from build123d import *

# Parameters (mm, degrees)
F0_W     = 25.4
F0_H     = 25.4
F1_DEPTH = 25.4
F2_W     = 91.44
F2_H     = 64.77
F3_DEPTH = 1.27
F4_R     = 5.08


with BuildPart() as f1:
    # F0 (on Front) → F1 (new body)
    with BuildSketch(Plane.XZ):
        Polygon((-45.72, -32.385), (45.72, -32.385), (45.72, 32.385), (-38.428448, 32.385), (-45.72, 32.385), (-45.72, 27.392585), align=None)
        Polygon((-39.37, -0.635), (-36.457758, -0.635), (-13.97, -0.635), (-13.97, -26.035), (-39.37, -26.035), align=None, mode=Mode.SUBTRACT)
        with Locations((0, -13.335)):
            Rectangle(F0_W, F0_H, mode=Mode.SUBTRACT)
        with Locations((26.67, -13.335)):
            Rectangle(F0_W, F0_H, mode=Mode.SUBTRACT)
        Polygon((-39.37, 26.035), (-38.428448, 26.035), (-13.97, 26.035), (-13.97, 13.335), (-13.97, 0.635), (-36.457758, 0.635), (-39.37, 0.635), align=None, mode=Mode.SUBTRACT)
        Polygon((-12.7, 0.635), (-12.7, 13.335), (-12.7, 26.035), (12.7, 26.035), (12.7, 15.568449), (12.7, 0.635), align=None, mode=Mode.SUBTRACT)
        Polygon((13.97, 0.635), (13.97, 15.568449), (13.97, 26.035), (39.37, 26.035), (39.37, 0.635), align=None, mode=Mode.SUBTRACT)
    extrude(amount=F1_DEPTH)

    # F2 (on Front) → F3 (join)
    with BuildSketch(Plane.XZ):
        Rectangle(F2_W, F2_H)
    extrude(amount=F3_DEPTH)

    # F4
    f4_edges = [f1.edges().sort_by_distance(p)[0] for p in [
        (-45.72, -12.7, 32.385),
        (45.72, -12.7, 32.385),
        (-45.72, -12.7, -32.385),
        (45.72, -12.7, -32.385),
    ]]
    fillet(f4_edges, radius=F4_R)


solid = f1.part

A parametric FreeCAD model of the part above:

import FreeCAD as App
import Part
import Sketcher
from FreeCAD import Vector
Q = App.Units.Quantity


def edges_at(feature, points):
    """Names of the edges that pass closest to the given points."""
    edges = feature.Shape.Edges
    near = lambda p: min(range(len(edges)), key=lambda i: edges[i].distToShape(Part.Vertex(*p))[0])
    return sorted({f"Edge{near(p) + 1}" for p in points})

doc = App.newDocument("Part")
body = doc.addObject("PartDesign::Body", "Body")

# Sketch on XZ plane
sketch1 = doc.addObject("Sketcher::SketchObject", "Sketch")
body.addObject(sketch1)
sketch1.AttachmentSupport = (doc.XZ_Plane, [""])
sketch1.MapMode = "FlatFace"
sketch1.addGeometry([
    Part.LineSegment(Vector(-46, -32, 0), Vector(46, -32, 0)),  # 0
    Part.LineSegment(Vector(46, -32, 0), Vector(46, 32, 0)),  # 1
    Part.LineSegment(Vector(46, 32, 0), Vector(-46, 32, 0)),  # 2
    Part.LineSegment(Vector(-46, 32, 0), Vector(-46, -32, 0)),  # 3
    Part.LineSegment(Vector(-39, -26, 0), Vector(-39, -1, 0)),  # 4
    Part.LineSegment(Vector(-39, -1, 0), Vector(-14, -1, 0)),  # 5
    Part.LineSegment(Vector(-14, -1, 0), Vector(-14, -26, 0)),  # 6
    Part.LineSegment(Vector(-14, -26, 0), Vector(-39, -26, 0)),  # 7
    Part.LineSegment(Vector(13, -26, 0), Vector(-13, -26, 0)),  # 8
    Part.LineSegment(Vector(-13, -26, 0), Vector(-13, -1, 0)),  # 9
    Part.LineSegment(Vector(-13, -1, 0), Vector(13, -1, 0)),  # 10
    Part.LineSegment(Vector(13, -1, 0), Vector(13, -26, 0)),  # 11
    Part.LineSegment(Vector(39, -26, 0), Vector(14, -26, 0)),  # 12
    Part.LineSegment(Vector(14, -26, 0), Vector(14, -1, 0)),  # 13
    Part.LineSegment(Vector(14, -1, 0), Vector(39, -1, 0)),  # 14
    Part.LineSegment(Vector(39, -1, 0), Vector(39, -26, 0)),  # 15
    Part.LineSegment(Vector(-39, 1, 0), Vector(-39, 26, 0)),  # 16
    Part.LineSegment(Vector(-39, 26, 0), Vector(-14, 26, 0)),  # 17
    Part.LineSegment(Vector(-14, 26, 0), Vector(-14, 1, 0)),  # 18
    Part.LineSegment(Vector(-14, 1, 0), Vector(-39, 1, 0)),  # 19
    Part.LineSegment(Vector(13, 1, 0), Vector(-13, 1, 0)),  # 20
    Part.LineSegment(Vector(-13, 1, 0), Vector(-13, 26, 0)),  # 21
    Part.LineSegment(Vector(-13, 26, 0), Vector(13, 26, 0)),  # 22
    Part.LineSegment(Vector(13, 26, 0), Vector(13, 1, 0)),  # 23
    Part.LineSegment(Vector(39, 1, 0), Vector(14, 1, 0)),  # 24
    Part.LineSegment(Vector(14, 1, 0), Vector(14, 26, 0)),  # 25
    Part.LineSegment(Vector(14, 26, 0), Vector(39, 26, 0)),  # 26
    Part.LineSegment(Vector(39, 26, 0), Vector(39, 1, 0)),  # 27
], False)
sketch1.addConstraint([
    Sketcher.Constraint("Coincident", 0, 2, 1, 1),
    Sketcher.Constraint("Coincident", 1, 2, 2, 1),
    Sketcher.Constraint("Coincident", 2, 2, 3, 1),
    Sketcher.Constraint("Coincident", 3, 2, 0, 1),
    Sketcher.Constraint("Coincident", 4, 2, 5, 1),
    Sketcher.Constraint("Coincident", 5, 2, 6, 1),
    Sketcher.Constraint("Coincident", 6, 2, 7, 1),
    Sketcher.Constraint("Coincident", 7, 2, 4, 1),
    Sketcher.Constraint("Coincident", 8, 2, 9, 1),
    Sketcher.Constraint("Coincident", 9, 2, 10, 1),
    Sketcher.Constraint("Coincident", 10, 2, 11, 1),
    Sketcher.Constraint("Coincident", 11, 2, 8, 1),
    Sketcher.Constraint("Coincident", 12, 2, 13, 1),
    Sketcher.Constraint("Coincident", 13, 2, 14, 1),
    Sketcher.Constraint("Coincident", 14, 2, 15, 1),
    Sketcher.Constraint("Coincident", 15, 2, 12, 1),
    Sketcher.Constraint("Coincident", 16, 2, 17, 1),
    Sketcher.Constraint("Coincident", 17, 2, 18, 1),
    Sketcher.Constraint("Coincident", 18, 2, 19, 1),
    Sketcher.Constraint("Coincident", 19, 2, 16, 1),
    Sketcher.Constraint("Coincident", 20, 2, 21, 1),
    Sketcher.Constraint("Coincident", 21, 2, 22, 1),
    Sketcher.Constraint("Coincident", 22, 2, 23, 1),
    Sketcher.Constraint("Coincident", 23, 2, 20, 1),
    Sketcher.Constraint("Coincident", 24, 2, 25, 1),
    Sketcher.Constraint("Coincident", 25, 2, 26, 1),
    Sketcher.Constraint("Coincident", 26, 2, 27, 1),
    Sketcher.Constraint("Coincident", 27, 2, 24, 1),
    Sketcher.Constraint("Horizontal", 0),
    Sketcher.Constraint("Vertical", 1),
    Sketcher.Constraint("Horizontal", 2),
    Sketcher.Constraint("Vertical", 3),
    Sketcher.Constraint("Vertical", 4),
    Sketcher.Constraint("Horizontal", 5),
    Sketcher.Constraint("Vertical", 6),
    Sketcher.Constraint("Horizontal", 7),
    Sketcher.Constraint("Horizontal", 8),
    Sketcher.Constraint("Vertical", 9),
    Sketcher.Constraint("Horizontal", 10),
    Sketcher.Constraint("Vertical", 11),
    Sketcher.Constraint("Horizontal", 12),
    Sketcher.Constraint("Vertical", 13),
    Sketcher.Constraint("Horizontal", 14),
    Sketcher.Constraint("Vertical", 15),
    Sketcher.Constraint("Vertical", 16),
    Sketcher.Constraint("Horizontal", 17),
    Sketcher.Constraint("Vertical", 18),
    Sketcher.Constraint("Horizontal", 19),
    Sketcher.Constraint("Horizontal", 20),
    Sketcher.Constraint("Vertical", 21),
    Sketcher.Constraint("Horizontal", 22),
    Sketcher.Constraint("Vertical", 23),
    Sketcher.Constraint("Horizontal", 24),
    Sketcher.Constraint("Vertical", 25),
    Sketcher.Constraint("Horizontal", 26),
    Sketcher.Constraint("Vertical", 27),
    Sketcher.Constraint("Symmetric", 0, 2, 2, 2, -1, 1),
    Sketcher.Constraint("Symmetric", 15, 2, 16, 2, -1, 1),
    Sketcher.Constraint("Symmetric", 13, 2, 18, 2, -1, 1),
    Sketcher.Constraint("Symmetric", 10, 2, 20, 2, -1, 1),
    Sketcher.Constraint("Symmetric", 8, 2, 22, 2, -1, 1),
    Sketcher.Constraint("Symmetric", 5, 2, 24, 2, -1, 1),
    Sketcher.Constraint("Symmetric", 7, 2, 26, 2, -1, 1),
    Sketcher.Constraint("Symmetric", 6, 2, 12, 2, -2),
    Sketcher.Constraint("Symmetric", 4, 2, 14, 2, -2),
    Sketcher.Constraint("Horizontal", 7, 2, 8, 2),
    Sketcher.Constraint("Horizontal", 5, 2, 9, 2),
    Sketcher.Constraint("Vertical", 9, 2, 20, 2),
    Sketcher.Constraint("Equal", 7, 8),
    Sketcher.Constraint("Equal", 26, 4),
    Sketcher.Constraint("DistanceX", 5, 1, 5, 2, Q("1 in")),
    Sketcher.Constraint("DistanceX", 0, 1, 0, 2, Q("3.6 in")),
    Sketcher.Constraint("DistanceY", 1, 1, 1, 2, Q("2.55 in")),
    Sketcher.Constraint("DistanceY", 4, 2, 2, 2, Q("1.3 in")),
    Sketcher.Constraint("DistanceX", 6, 2, 12, 2, Q("1.1 in")),
])
pad1 = doc.addObject("PartDesign::Pad", "Pad")
body.addObject(pad1)
pad1.Profile = sketch1
pad1.Length = Q("1 in")

# Sketch on XZ plane
sketch2 = doc.addObject("Sketcher::SketchObject", "Sketch001")
body.addObject(sketch2)
sketch2.AttachmentSupport = (doc.XZ_Plane, [""])
sketch2.MapMode = "FlatFace"
sketch2.addGeometry([
    Part.LineSegment(Vector(-46, 32, 0), Vector(-46, -32, 0)),
    Part.LineSegment(Vector(-46, -32, 0), Vector(46, -32, 0)),
    Part.LineSegment(Vector(46, -32, 0), Vector(46, 32, 0)),
    Part.LineSegment(Vector(46, 32, 0), Vector(-46, 32, 0)),
], False)
sketch2.addConstraint([
    Sketcher.Constraint("Coincident", 0, 2, 1, 1),
    Sketcher.Constraint("Coincident", 1, 2, 2, 1),
    Sketcher.Constraint("Coincident", 2, 2, 3, 1),
    Sketcher.Constraint("Coincident", 3, 2, 0, 1),
    Sketcher.Constraint("Vertical", 0),
    Sketcher.Constraint("Horizontal", 1),
    Sketcher.Constraint("Vertical", 2),
    Sketcher.Constraint("Horizontal", 3),
    Sketcher.Constraint("Symmetric", 0, 2, 2, 2, -1, 1),
    Sketcher.Constraint("DistanceX", 1, 1, 1, 2, Q("3.6 in")),
    Sketcher.Constraint("DistanceY", 0, 2, 0, 1, Q("2.55 in")),
])
pad2 = doc.addObject("PartDesign::Pad", "Pad001")
body.addObject(pad2)
pad2.Profile = sketch2
pad2.Length = Q("0.05 in")
doc.recompute()

fillet = doc.addObject("PartDesign::Fillet", "Fillet")
body.addObject(fillet)
fillet.Base = (pad2, edges_at(pad2, [
    (-45.72, -12.7, 32.385),
    (45.72, -12.7, 32.385),
    (-45.72, -12.7, -32.385),
    (45.72, -12.7, -32.385),
]))
fillet.Radius = Q("0.2 in")

doc.recompute()
